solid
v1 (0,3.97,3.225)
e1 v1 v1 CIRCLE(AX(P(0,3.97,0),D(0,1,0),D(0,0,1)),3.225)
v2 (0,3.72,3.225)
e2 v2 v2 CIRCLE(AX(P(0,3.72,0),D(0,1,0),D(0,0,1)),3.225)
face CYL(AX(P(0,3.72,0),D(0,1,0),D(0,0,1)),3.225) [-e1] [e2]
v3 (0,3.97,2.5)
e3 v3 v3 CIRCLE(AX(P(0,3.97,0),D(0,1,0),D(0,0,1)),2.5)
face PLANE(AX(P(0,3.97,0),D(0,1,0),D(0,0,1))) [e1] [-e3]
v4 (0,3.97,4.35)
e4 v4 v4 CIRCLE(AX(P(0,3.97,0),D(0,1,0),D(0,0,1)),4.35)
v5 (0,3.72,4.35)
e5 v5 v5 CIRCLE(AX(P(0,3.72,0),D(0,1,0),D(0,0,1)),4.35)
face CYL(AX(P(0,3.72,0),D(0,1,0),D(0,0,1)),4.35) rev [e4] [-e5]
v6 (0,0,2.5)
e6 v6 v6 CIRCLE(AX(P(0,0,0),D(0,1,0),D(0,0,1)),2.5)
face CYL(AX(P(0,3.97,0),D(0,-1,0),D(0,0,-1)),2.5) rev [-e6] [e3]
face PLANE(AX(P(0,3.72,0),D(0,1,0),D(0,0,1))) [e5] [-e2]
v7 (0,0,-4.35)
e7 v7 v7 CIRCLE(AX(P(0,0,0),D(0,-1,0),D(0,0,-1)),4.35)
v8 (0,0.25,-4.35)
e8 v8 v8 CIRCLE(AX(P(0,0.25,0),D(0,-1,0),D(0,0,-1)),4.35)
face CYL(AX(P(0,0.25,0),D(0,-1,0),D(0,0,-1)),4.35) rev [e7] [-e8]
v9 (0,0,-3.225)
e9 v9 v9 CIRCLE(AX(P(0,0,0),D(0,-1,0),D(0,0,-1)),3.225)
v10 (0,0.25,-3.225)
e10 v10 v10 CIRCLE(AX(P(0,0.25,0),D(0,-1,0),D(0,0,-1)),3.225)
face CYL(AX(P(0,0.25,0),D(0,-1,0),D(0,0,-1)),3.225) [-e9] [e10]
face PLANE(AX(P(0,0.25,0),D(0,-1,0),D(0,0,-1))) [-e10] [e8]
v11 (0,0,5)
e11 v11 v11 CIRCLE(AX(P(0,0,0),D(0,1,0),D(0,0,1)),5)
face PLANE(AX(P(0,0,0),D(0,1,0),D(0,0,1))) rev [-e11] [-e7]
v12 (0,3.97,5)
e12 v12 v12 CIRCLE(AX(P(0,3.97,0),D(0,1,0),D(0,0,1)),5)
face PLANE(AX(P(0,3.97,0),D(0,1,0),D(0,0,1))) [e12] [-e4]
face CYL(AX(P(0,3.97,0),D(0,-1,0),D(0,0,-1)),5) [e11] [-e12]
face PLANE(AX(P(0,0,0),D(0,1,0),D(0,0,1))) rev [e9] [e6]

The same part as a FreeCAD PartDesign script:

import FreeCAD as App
import Part
import Sketcher
from FreeCAD import Vector

doc = App.newDocument("Part")
params = doc.addObject("Spreadsheet::Sheet", "Params")
for row, (alias, value) in enumerate([
    ("sketch1_diameter", "10 mm"),
    ("sketch1_diameter2", "5 mm"),
    ("pad1_length", "3.97 mm"),
    ("sketch2_diameter", "8.7 mm"),
    ("sketch2_diameter2", "6.45 mm"),
    ("pocket1_length", "0.25 mm"),
    ("sketch3_diameter", "8.7 mm"),
    ("sketch3_diameter2", "6.45 mm"),
    ("pocket2_length", "0.25 mm"),
], start=1):
    params.set(f"A{row}", alias)
    params.set(f"B{row}", "=" + value)
    params.setAlias(f"B{row}", alias)

body = doc.addObject("PartDesign::Body", "Body")

# Sketch on XZ plane
sketch1 = body.newObject("Sketcher::SketchObject", "Sketch")
sketch1.AttachmentSupport = (doc.getObject("XZ_Plane"), [""])
sketch1.MapMode = "FlatFace"
sketch1.addGeometry(Part.Circle(Vector(0, 0, 0), Vector(0, 0, 1), 5), False)
sketch1.addGeometry(Part.Circle(Vector(0, 0, 0), Vector(0, 0, 1), 2.5), False)
sketch1.addConstraint(Sketcher.Constraint("Coincident", 0, 3, -1, 1))
sketch1.addConstraint(Sketcher.Constraint("Coincident", 1, 3, -1, 1))
sketch1.addConstraint(Sketcher.Constraint("Diameter", 0, 10.0))
sketch1.addConstraint(Sketcher.Constraint("Diameter", 1, 5.0))
sketch1.setExpression("Constraints[2]", "Params.sketch1_diameter")
sketch1.setExpression("Constraints[3]", "Params.sketch1_diameter2")
pad1 = body.newObject("PartDesign::Pad", "Pad")
pad1.Profile = sketch1
pad1.setExpression("Length", "Params.pad1_length")
pad1.Reversed = True

# Sketch on XZ plane
sketch2 = body.newObject("Sketcher::SketchObject", "Sketch001")
sketch2.AttachmentSupport = (doc.getObject("XZ_Plane"), [""])
sketch2.MapMode = "FlatFace"
sketch2.AttachmentOffset = App.Placement(Vector(0, 0, -3.97), App.Rotation())
sketch2.addGeometry(Part.Circle(Vector(0, 0, 0), Vector(0, 0, 1), 4.35), False)
sketch2.addGeometry(Part.Circle(Vector(0, 0, 0), Vector(0, 0, 1), 3.225), False)
sketch2.addConstraint(Sketcher.Constraint("Coincident", 0, 3, -1, 1))
sketch2.addConstraint(Sketcher.Constraint("Coincident", 1, 3, -1, 1))
sketch2.addConstraint(Sketcher.Constraint("Diameter", 0, 8.7))
sketch2.addConstraint(Sketcher.Constraint("Diameter", 1, 6.45))
sketch2.setExpression("Constraints[2]", "Params.sketch2_diameter")
sketch2.setExpression("Constraints[3]", "Params.sketch2_diameter2")
pocket1 = body.newObject("PartDesign::Pocket", "Pocket")
pocket1.Profile = sketch2
pocket1.setExpression("Length", "Params.pocket1_length")
pocket1.Reversed = True

# Sketch on XZ plane
sketch3 = body.newObject("Sketcher::SketchObject", "Sketch002")
sketch3.AttachmentSupport = (doc.getObject("XZ_Plane"), [""])
sketch3.MapMode = "FlatFace"
sketch3.addGeometry(Part.Circle(Vector(0, 0, 0), Vector(0, 0, 1), 4.35), False)
sketch3.addGeometry(Part.Circle(Vector(0, 0, 0), Vector(0, 0, 1), 3.225), False)
sketch3.addConstraint(Sketcher.Constraint("Coincident", 0, 3, -1, 1))
sketch3.addConstraint(Sketcher.Constraint("Coincident", 1, 3, -1, 1))
sketch3.addConstraint(Sketcher.Constraint("Diameter", 0, 8.7))
sketch3.addConstraint(Sketcher.Constraint("Diameter", 1, 6.45))
sketch3.setExpression("Constraints[2]", "Params.sketch3_diameter")
sketch3.setExpression("Constraints[3]", "Params.sketch3_diameter2")
pocket2 = body.newObject("PartDesign::Pocket", "Pocket001")
pocket2.Profile = sketch3
pocket2.setExpression("Length", "Params.pocket2_length")

doc.recompute()
